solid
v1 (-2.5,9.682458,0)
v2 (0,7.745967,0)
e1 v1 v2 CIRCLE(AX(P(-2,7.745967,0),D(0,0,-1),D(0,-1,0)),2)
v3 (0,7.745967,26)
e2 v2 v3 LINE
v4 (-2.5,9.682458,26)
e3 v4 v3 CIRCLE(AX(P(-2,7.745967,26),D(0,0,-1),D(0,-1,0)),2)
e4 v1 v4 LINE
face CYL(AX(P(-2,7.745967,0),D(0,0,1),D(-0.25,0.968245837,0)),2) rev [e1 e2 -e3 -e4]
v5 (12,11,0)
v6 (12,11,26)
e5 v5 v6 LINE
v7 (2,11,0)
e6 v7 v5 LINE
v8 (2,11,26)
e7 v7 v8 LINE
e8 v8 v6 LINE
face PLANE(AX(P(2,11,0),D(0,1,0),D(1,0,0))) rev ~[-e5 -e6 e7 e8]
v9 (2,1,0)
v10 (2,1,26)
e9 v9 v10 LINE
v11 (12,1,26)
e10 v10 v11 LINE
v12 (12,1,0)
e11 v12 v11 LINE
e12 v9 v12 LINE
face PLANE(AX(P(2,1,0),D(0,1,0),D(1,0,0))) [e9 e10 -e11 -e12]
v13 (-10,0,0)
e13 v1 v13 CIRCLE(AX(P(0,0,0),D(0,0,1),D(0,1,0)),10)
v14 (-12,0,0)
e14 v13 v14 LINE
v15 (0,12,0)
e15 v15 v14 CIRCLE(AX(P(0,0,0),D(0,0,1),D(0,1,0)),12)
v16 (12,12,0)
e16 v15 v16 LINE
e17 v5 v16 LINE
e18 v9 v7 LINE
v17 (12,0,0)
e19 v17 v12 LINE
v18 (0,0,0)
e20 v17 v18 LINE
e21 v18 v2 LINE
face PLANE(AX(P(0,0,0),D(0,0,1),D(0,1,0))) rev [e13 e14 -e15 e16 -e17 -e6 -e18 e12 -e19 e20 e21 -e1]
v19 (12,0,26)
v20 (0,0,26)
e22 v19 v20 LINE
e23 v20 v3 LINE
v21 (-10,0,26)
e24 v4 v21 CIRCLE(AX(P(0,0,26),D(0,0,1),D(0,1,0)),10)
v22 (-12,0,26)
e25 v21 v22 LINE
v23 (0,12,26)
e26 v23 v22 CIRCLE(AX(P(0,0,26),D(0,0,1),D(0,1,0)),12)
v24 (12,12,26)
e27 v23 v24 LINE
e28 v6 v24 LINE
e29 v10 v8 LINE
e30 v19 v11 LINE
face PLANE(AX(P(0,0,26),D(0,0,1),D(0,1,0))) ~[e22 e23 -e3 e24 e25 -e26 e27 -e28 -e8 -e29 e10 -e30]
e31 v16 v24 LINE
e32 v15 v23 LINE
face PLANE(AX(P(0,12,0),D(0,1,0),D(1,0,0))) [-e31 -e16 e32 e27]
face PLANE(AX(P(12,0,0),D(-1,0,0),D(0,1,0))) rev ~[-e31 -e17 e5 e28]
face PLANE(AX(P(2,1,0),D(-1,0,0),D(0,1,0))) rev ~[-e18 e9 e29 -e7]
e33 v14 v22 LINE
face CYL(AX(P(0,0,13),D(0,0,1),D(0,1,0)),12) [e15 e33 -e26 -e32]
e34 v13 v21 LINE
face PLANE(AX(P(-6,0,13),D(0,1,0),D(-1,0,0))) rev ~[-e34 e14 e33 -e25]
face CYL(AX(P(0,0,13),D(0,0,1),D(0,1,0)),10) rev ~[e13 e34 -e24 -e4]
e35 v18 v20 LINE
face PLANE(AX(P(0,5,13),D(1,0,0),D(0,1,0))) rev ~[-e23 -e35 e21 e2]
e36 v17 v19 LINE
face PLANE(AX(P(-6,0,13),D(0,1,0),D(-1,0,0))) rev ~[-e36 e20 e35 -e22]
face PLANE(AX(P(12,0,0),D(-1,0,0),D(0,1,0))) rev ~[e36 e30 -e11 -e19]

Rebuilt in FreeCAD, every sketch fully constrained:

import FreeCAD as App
import Part
import Sketcher

V = App.Vector
Q = App.Units.Quantity


def edges_at(feature, points):
    """Names of the edges that pass closest to the given points."""
    edges = feature.Shape.Edges
    near = lambda p: min(range(len(edges)), key=lambda i: edges[i].distToShape(Part.Vertex(*p))[0])
    return sorted({f"Edge{near(p) + 1}" for p in points})


def add_polygon(sketch, points):
    """Adds a closed chain of lines whose ends are joined by coincident constraints."""
    first, n = sketch.GeometryCount, len(points)
    for a, b in zip(points, points[1:] + points[:1]):
        sketch.addGeometry(Part.LineSegment(App.Vector(*a, 0), App.Vector(*b, 0)), False)
    for i in range(n):
        sketch.addConstraint(Sketcher.Constraint("Coincident", first + i, 2, first + (i + 1) % n, 1))

doc = App.newDocument("Part")
body = doc.addObject("PartDesign::Body", "Body")

sketch1 = doc.addObject("Sketcher::SketchObject", "Sketch")
body.addObject(sketch1)
sketch1.AttachmentSupport = (doc.YZ_Plane, [""])
sketch1.MapMode = "FlatFace"
add_polygon(sketch1, [(0, 26), (0, 0), (10, 0), (10, 26)])
sketch1.addConstraint(Sketcher.Constraint("Vertical", 0))
sketch1.addConstraint(Sketcher.Constraint("Horizontal", 1))
sketch1.addConstraint(Sketcher.Constraint("Vertical", 2))
sketch1.addConstraint(Sketcher.Constraint("Horizontal", 3))
sketch1.addConstraint(Sketcher.Constraint("Coincident", 0, 2, -1, 1))
sketch1.addConstraint(Sketcher.Constraint("DistanceX", 1, 1, 1, 2, Q("10 mm")))
sketch1.addConstraint(Sketcher.Constraint("DistanceY", 0, 2, 0, 1, Q("26 mm")))
revolution = doc.addObject("PartDesign::Revolution", "Revolution")
body.addObject(revolution)
revolution.Profile = sketch1
revolution.ReferenceAxis = (sketch1, ["V_Axis"])
revolution.Angle = 90
body2 = doc.addObject("PartDesign::Body", "Body001")

sketch2 = doc.addObject("Sketcher::SketchObject", "Sketch001")
body2.addObject(sketch2)
sketch2.AttachmentSupport = (doc.getObject("XY_Plane001"), [""])
sketch2.MapMode = "FlatFace"
add_polygon(sketch2, [(2, 11), (2, 1), (12, 1), (12, 11)])
sketch2.addConstraint(Sketcher.Constraint("Vertical", 0))
sketch2.addConstraint(Sketcher.Constraint("Horizontal", 1))
sketch2.addConstraint(Sketcher.Constraint("Vertical", 2))
sketch2.addConstraint(Sketcher.Constraint("Horizontal", 3))
sketch2.addConstraint(Sketcher.Constraint("Equal", 3, 0))
sketch2.addConstraint(Sketcher.Constraint("DistanceX", 1, 1, 1, 2, Q("10 mm")))
sketch2.addConstraint(Sketcher.Constraint("DistanceX", -1, 1, 0, 2, Q("2 mm")))
sketch2.addConstraint(Sketcher.Constraint("DistanceY", -1, 1, 0, 2, Q("1 mm")))
pad1 = doc.addObject("PartDesign::Pad", "Pad")
body2.addObject(pad1)
pad1.Profile = sketch2
pad1.Length = 26
body3 = doc.addObject("PartDesign::Body", "Body002")

sketch3 = doc.addObject("Sketcher::SketchObject", "Sketch002")
body3.addObject(sketch3)
sketch3.AttachmentSupport = (doc.getObject("YZ_Plane002"), [""])
sketch3.MapMode = "FlatFace"
add_polygon(sketch3, [(0, 26), (0, 0), (12, 0), (12, 26)])
sketch3.addConstraint(Sketcher.Constraint("Vertical", 0))
sketch3.addConstraint(Sketcher.Constraint("Horizontal", 1))
sketch3.addConstraint(Sketcher.Constraint("Vertical", 2))
sketch3.addConstraint(Sketcher.Constraint("Horizontal", 3))
sketch3.addConstraint(Sketcher.Constraint("Coincident", 0, 2, -1, 1))
sketch3.addConstraint(Sketcher.Constraint("DistanceX", 1, 1, 1, 2, Q("12 mm")))
sketch3.addConstraint(Sketcher.Constraint("DistanceY", 0, 2, 0, 1, Q("26 mm")))
revolution2 = doc.addObject("PartDesign::Revolution", "Revolution001")
body3.addObject(revolution2)
revolution2.Profile = sketch3
revolution2.ReferenceAxis = (sketch3, ["V_Axis"])
revolution2.Angle = 90
body4 = doc.addObject("PartDesign::Body", "Body003")

sketch4 = doc.addObject("Sketcher::SketchObject", "Sketch003")
body4.addObject(sketch4)
sketch4.AttachmentSupport = (doc.getObject("XY_Plane003"), [""])
sketch4.MapMode = "FlatFace"
add_polygon(sketch4, [(0, 12), (0, 0), (12, 0), (12, 12)])
sketch4.addConstraint(Sketcher.Constraint("Vertical", 0))
sketch4.addConstraint(Sketcher.Constraint("Horizontal", 1))
sketch4.addConstraint(Sketcher.Constraint("Vertical", 2))
sketch4.addConstraint(Sketcher.Constraint("Horizontal", 3))
sketch4.addConstraint(Sketcher.Constraint("Coincident", 0, 2, -1, 1))
sketch4.addConstraint(Sketcher.Constraint("Equal", 3, 0))
sketch4.addConstraint(Sketcher.Constraint("DistanceX", 1, 1, 1, 2, Q("12 mm")))
pad2 = doc.addObject("PartDesign::Pad", "Pad001")
body4.addObject(pad2)
pad2.Profile = sketch4
pad2.Length = 26
doc.recompute()

boolean = doc.addObject("PartDesign::Boolean", "Boolean")
body4.addObject(boolean)
boolean.Type = "Fuse"
boolean.addObjects([body3])
doc.recompute()

boolean2 = doc.addObject("PartDesign::Boolean", "Boolean001")
body4.addObject(boolean2)
boolean2.Type = "Cut"
boolean2.addObjects([body2])
doc.recompute()

boolean3 = doc.addObject("PartDesign::Boolean", "Boolean002")
body4.addObject(boolean3)
boolean3.Type = "Cut"
boolean3.addObjects([body])
doc.recompute()

fillet = doc.addObject("PartDesign::Fillet", "Fillet")
body4.addObject(fillet)
fillet.Base = (boolean3, edges_at(boolean3, [(0, 10, 13)]))
fillet.Radius = 2

doc.recompute()
